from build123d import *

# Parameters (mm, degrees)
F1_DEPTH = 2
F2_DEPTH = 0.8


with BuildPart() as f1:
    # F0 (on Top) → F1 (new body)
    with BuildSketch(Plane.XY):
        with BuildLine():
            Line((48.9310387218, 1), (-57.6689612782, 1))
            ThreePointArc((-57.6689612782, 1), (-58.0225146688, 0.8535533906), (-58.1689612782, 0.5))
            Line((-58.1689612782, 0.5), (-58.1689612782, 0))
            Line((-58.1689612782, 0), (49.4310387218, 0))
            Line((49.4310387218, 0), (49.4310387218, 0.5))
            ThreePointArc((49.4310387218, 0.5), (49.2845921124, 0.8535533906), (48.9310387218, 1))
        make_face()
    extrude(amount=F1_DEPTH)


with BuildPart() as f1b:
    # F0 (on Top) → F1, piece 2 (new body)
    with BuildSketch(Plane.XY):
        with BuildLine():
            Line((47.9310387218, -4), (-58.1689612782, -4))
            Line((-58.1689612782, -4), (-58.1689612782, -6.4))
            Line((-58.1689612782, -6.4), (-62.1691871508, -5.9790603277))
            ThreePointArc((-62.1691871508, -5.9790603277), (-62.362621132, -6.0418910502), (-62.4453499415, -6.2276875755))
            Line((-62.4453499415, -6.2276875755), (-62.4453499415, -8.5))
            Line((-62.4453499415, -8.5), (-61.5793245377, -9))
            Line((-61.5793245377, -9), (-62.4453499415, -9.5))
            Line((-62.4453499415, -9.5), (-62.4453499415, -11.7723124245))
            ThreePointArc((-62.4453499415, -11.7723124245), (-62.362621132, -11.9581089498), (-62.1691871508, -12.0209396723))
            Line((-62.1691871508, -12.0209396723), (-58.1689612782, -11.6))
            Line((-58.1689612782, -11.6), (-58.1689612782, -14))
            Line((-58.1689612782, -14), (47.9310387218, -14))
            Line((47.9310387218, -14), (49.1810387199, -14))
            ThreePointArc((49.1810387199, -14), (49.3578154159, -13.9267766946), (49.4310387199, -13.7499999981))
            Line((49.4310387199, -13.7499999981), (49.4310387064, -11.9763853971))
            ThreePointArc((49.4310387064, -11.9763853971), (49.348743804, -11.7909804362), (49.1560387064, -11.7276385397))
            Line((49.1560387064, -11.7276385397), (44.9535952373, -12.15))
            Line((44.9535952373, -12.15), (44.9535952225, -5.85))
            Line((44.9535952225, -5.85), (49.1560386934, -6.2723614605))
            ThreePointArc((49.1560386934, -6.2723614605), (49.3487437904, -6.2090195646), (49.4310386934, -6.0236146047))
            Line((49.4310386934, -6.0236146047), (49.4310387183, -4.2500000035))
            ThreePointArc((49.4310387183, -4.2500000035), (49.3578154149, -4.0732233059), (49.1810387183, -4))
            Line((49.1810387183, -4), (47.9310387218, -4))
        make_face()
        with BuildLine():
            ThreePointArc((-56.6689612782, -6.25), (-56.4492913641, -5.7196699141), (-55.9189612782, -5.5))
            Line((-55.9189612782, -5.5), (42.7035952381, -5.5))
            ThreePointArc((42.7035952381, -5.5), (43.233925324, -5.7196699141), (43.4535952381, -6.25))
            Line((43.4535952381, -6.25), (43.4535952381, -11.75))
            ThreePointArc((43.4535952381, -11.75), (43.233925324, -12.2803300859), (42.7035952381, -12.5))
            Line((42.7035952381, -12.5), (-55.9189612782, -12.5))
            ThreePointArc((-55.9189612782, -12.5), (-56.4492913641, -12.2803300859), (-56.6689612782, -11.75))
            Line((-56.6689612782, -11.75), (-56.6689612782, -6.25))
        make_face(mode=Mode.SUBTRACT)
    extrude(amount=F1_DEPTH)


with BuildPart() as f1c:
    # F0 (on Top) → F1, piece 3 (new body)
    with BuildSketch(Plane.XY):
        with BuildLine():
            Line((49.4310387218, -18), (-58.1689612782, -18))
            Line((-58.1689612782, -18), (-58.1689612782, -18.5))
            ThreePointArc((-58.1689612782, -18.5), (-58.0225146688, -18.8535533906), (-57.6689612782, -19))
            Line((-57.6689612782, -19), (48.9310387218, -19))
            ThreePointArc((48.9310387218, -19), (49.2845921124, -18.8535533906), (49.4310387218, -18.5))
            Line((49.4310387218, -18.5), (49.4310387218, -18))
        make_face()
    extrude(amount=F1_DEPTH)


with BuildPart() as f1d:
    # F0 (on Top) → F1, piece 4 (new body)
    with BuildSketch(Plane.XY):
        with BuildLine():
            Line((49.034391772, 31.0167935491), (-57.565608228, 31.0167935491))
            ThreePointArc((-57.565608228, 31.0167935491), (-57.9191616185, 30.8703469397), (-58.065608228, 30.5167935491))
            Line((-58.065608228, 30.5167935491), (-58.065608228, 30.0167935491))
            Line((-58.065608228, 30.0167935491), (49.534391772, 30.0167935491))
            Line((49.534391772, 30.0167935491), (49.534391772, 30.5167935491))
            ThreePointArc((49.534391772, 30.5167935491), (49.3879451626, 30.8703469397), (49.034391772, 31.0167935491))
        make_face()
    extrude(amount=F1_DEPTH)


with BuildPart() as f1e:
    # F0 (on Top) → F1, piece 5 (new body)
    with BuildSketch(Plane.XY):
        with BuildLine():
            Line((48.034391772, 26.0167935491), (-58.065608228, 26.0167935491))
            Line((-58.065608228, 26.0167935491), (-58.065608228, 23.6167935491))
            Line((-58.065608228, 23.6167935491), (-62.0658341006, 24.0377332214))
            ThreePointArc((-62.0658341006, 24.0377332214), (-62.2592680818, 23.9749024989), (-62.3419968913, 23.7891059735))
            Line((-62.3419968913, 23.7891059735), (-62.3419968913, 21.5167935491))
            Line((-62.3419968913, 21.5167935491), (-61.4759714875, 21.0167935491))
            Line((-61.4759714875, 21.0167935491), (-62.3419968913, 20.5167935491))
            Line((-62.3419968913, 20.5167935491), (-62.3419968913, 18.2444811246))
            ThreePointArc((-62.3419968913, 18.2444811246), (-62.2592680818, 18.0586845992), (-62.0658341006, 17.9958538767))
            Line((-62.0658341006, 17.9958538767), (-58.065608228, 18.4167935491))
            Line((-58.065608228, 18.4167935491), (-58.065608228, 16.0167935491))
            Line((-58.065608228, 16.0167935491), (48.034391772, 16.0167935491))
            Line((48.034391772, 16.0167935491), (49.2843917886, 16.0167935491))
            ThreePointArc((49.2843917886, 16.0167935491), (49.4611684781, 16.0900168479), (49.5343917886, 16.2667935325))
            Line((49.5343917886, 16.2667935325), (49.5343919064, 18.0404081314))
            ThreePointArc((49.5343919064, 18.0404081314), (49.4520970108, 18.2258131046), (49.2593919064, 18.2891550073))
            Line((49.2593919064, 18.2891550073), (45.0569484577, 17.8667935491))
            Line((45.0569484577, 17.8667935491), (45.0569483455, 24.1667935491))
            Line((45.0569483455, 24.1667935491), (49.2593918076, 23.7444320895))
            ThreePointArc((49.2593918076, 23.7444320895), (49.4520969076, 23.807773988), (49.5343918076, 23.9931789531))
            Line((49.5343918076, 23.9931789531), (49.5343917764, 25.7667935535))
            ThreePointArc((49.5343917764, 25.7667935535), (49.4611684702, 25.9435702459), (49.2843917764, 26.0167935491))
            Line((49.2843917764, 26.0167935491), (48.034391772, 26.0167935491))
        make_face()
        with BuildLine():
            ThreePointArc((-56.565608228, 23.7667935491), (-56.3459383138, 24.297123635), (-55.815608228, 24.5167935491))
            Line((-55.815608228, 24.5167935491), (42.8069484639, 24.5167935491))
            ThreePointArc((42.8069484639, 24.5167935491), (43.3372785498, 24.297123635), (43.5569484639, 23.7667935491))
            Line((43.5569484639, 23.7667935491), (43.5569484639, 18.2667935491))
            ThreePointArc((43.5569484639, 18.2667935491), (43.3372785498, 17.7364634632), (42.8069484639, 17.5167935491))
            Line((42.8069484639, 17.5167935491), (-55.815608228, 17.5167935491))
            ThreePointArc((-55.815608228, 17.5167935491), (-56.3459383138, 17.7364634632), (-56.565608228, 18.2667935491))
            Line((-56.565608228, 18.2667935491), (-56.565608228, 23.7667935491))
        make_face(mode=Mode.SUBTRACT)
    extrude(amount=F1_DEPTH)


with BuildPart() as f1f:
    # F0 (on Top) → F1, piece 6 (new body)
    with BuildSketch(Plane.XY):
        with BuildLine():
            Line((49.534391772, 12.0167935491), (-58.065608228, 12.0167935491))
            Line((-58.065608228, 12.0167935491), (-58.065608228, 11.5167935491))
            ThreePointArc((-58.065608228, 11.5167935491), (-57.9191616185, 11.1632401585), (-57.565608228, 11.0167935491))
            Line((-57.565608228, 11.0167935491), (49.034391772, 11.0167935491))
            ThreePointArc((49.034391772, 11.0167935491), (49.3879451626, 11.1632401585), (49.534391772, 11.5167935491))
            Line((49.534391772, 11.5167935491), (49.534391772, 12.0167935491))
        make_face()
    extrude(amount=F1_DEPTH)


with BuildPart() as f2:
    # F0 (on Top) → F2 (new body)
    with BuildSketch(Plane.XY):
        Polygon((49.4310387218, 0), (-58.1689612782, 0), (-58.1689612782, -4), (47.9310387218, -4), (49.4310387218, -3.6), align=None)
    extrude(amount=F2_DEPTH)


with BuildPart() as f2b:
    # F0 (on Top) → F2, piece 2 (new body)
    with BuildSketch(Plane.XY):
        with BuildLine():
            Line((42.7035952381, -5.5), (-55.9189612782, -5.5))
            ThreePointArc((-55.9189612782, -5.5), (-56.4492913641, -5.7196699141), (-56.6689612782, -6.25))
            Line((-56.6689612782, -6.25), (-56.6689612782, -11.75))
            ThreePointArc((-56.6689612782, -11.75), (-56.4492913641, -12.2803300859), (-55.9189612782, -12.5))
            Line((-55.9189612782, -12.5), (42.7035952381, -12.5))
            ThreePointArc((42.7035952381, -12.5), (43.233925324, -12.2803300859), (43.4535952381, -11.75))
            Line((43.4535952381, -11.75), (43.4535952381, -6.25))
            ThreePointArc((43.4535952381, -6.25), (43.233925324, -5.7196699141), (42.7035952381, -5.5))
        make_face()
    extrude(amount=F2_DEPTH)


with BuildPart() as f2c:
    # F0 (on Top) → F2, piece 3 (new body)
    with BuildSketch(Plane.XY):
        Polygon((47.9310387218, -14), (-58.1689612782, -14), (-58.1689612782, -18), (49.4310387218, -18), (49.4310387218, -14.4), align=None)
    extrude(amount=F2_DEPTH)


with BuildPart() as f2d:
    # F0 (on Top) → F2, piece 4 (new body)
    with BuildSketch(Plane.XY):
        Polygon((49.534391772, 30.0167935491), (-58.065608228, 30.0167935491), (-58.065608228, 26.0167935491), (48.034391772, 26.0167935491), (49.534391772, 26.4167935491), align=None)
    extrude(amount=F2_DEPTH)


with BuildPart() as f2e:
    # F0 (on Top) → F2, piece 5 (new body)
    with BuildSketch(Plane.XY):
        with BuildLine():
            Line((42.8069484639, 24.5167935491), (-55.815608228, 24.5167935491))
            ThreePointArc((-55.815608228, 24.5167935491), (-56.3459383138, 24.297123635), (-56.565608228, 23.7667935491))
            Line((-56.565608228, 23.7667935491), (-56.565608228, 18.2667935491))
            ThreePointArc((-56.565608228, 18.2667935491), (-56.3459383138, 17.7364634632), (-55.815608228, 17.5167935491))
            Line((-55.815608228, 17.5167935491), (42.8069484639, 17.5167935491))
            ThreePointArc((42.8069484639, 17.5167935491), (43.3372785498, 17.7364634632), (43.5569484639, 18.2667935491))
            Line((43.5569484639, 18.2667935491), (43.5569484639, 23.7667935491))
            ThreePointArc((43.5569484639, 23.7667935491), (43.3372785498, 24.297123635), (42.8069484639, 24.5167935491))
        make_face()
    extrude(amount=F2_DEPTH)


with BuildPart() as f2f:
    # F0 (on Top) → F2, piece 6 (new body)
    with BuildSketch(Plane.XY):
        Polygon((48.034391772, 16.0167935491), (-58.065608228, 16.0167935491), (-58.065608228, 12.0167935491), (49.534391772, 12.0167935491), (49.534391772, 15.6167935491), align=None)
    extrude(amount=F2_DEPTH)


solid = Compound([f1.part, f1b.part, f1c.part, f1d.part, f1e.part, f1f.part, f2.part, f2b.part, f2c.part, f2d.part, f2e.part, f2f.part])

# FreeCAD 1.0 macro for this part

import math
import FreeCAD as App
import Part
import Sketcher
Q = App.Units.Quantity


def add_polygon(sketch, points):
    """Adds a closed chain of lines whose ends are joined by coincident constraints."""
    first, n = sketch.GeometryCount, len(points)
    for a, b in zip(points, points[1:] + points[:1]):
        sketch.addGeometry(Part.LineSegment(App.Vector(*a, 0), App.Vector(*b, 0)), False)
    for i in range(n):
        sketch.addConstraint(Sketcher.Constraint("Coincident", first + i, 2, first + (i + 1) % n, 1))

doc = App.newDocument("Part")
body = doc.addObject("PartDesign::Body", "Body")

# Sketch on XY plane
sketch1 = doc.addObject("Sketcher::SketchObject", "Sketch")
body.addObject(sketch1)
sketch1.AttachmentSupport = (doc.XY_Plane, [""])
sketch1.MapMode = "FlatFace"
sketch1.addGeometry(Part.LineSegment(App.Vector(48.931039, 1, 0), App.Vector(-57.668961, 1, 0)), False)
sketch1.addGeometry(Part.ArcOfCircle(Part.Circle(App.Vector(-57.668961, 0.5, 0), App.Vector(0, 0, 1), 0.5), math.radians(90), math.radians(180)), False)
sketch1.addGeometry(Part.LineSegment(App.Vector(-58.168961, 0.5, 0), App.Vector(-58.168961, 0, 0)), False)
sketch1.addGeometry(Part.LineSegment(App.Vector(-58.168961, 0, 0), App.Vector(49.431039, 0, 0)), False)
sketch1.addGeometry(Part.LineSegment(App.Vector(49.431039, 0, 0), App.Vector(49.431039, 0.5, 0)), False)
sketch1.addGeometry(Part.ArcOfCircle(Part.Circle(App.Vector(48.931039, 0.5, 0), App.Vector(0, 0, 1), 0.5), math.radians(0), math.radians(90)), False)
sketch1.addConstraint(Sketcher.Constraint("Tangent", 0, 2, 1, 1))
sketch1.addConstraint(Sketcher.Constraint("Tangent", 1, 2, 2, 1))
sketch1.addConstraint(Sketcher.Constraint("Coincident", 2, 2, 3, 1))
sketch1.addConstraint(Sketcher.Constraint("Coincident", 3, 2, 4, 1))
sketch1.addConstraint(Sketcher.Constraint("Tangent", 4, 2, 5, 1))
sketch1.addConstraint(Sketcher.Constraint("Tangent", 5, 2, 0, 1))
sketch1.addConstraint(Sketcher.Constraint("Horizontal", 0))
sketch1.addConstraint(Sketcher.Constraint("Vertical", 2))
sketch1.addConstraint(Sketcher.Constraint("Horizontal", 3))
sketch1.addConstraint(Sketcher.Constraint("Vertical", 4))
sketch1.addConstraint(Sketcher.Constraint("Equal", 1, 5))
sketch1.addConstraint(Sketcher.Constraint("PointOnObject", 2, 2, -1))
sketch1.addConstraint(Sketcher.Constraint("Radius", 1, Q("0.5 mm")))
sketch1.addConstraint(Sketcher.Constraint("DistanceX", 0, 2, 0, 1, Q("106.6 mm")))
sketch1.addConstraint(Sketcher.Constraint("DistanceY", 2, 2, 2, 1, Q("0.5 mm")))
sketch1.addConstraint(Sketcher.Constraint("DistanceX", 1, 3, -1, 1, Q("57.668961 mm")))
pad1 = doc.addObject("PartDesign::Pad", "Pad")
body.addObject(pad1)
pad1.Profile = sketch1
pad1.Length = 2
body2 = doc.addObject("PartDesign::Body", "Body001")

# Sketch on XY plane
sketch2 = doc.addObject("Sketcher::SketchObject", "Sketch001")
body2.addObject(sketch2)
sketch2.AttachmentSupport = (doc.getObject("XY_Plane001"), [""])
sketch2.MapMode = "FlatFace"
sketch2.addGeometry(Part.LineSegment(App.Vector(-58.168961, -4, 0), App.Vector(-58.168961, -6.4, 0)), False)
sketch2.addGeometry(Part.LineSegment(App.Vector(-58.168961, -6.4, 0), App.Vector(-62.169187, -5.97906, 0)), False)
sketch2.addGeometry(Part.ArcOfCircle(Part.Circle(App.Vector(-62.19535, -6.227688, 0), App.Vector(0, 0, 1), 0.25), math.radians(83.992931), math.radians(180)), False)
sketch2.addGeometry(Part.LineSegment(App.Vector(-62.44535, -6.227688, 0), App.Vector(-62.44535, -8.5, 0)), False)
sketch2.addGeometry(Part.LineSegment(App.Vector(-62.44535, -8.5, 0), App.Vector(-61.579325, -9, 0)), False)
sketch2.addGeometry(Part.LineSegment(App.Vector(-61.579325, -9, 0), App.Vector(-62.44535, -9.5, 0)), False)
sketch2.addGeometry(Part.LineSegment(App.Vector(-62.44535, -9.5, 0), App.Vector(-62.44535, -11.772312, 0)), False)
sketch2.addGeometry(Part.ArcOfCircle(Part.Circle(App.Vector(-62.19535, -11.772312, 0), App.Vector(0, 0, 1), 0.25), math.radians(-180), math.radians(-83.992931)), False)
sketch2.addGeometry(Part.LineSegment(App.Vector(-62.169187, -12.02094, 0), App.Vector(-58.168961, -11.6, 0)), False)
sketch2.addGeometry(Part.LineSegment(App.Vector(-58.168961, -11.6, 0), App.Vector(-58.168961, -14, 0)), False)
sketch2.addGeometry(Part.LineSegment(App.Vector(-58.168961, -14, 0), App.Vector(49.181039, -14, 0)), False)
sketch2.addGeometry(Part.ArcOfCircle(Part.Circle(App.Vector(49.181039, -13.75, 0), App.Vector(0, 0, 1), 0.25), math.radians(-90), math.radians(0)), False)
sketch2.addGeometry(Part.LineSegment(App.Vector(49.431039, -13.75, 0), App.Vector(49.431039, -11.976385, 0)), False)
sketch2.addGeometry(Part.ArcOfCircle(Part.Circle(App.Vector(49.181039, -11.976385, 0), App.Vector(0, 0, 1), 0.25), math.radians(0), math.radians(95.73917)), False)
sketch2.addGeometry(Part.LineSegment(App.Vector(49.156039, -11.727639, 0), App.Vector(44.953595, -12.15, 0)), False)
sketch2.addGeometry(Part.LineSegment(App.Vector(44.953595, -12.15, 0), App.Vector(44.953595, -5.85, 0)), False)
sketch2.addGeometry(Part.LineSegment(App.Vector(44.953595, -5.85, 0), App.Vector(49.156039, -6.272361, 0)), False)
sketch2.addGeometry(Part.ArcOfCircle(Part.Circle(App.Vector(49.181039, -6.023615, 0), App.Vector(0, 0, 1), 0.25), math.radians(-95.73917), math.radians(-0.000001)), False)
sketch2.addGeometry(Part.LineSegment(App.Vector(49.431039, -6.023615, 0), App.Vector(49.431039, -4.25, 0)), False)
sketch2.addGeometry(Part.ArcOfCircle(Part.Circle(App.Vector(49.181039, -4.25, 0), App.Vector(0, 0, 1), 0.25), math.radians(-0.000001), math.radians(90)), False)
sketch2.addGeometry(Part.LineSegment(App.Vector(49.181039, -4, 0), App.Vector(-58.168961, -4, 0)), False)
sketch2.addGeometry(Part.LineSegment(App.Vector(-56.668961, -11.75, 0), App.Vector(-56.668961, -6.25, 0)), False)
sketch2.addGeometry(Part.ArcOfCircle(Part.Circle(App.Vector(-55.918961, -6.25, 0), App.Vector(0, 0, 1), 0.75), math.radians(90), math.radians(180)), False)
sketch2.addGeometry(Part.LineSegment(App.Vector(-55.918961, -5.5, 0), App.Vector(42.703595, -5.5, 0)), False)
sketch2.addGeometry(Part.ArcOfCircle(Part.Circle(App.Vector(42.703595, -6.25, 0), App.Vector(0, 0, 1), 0.75), math.radians(0), math.radians(90)), False)
sketch2.addGeometry(Part.LineSegment(App.Vector(43.453595, -6.25, 0), App.Vector(43.453595, -11.75, 0)), False)
sketch2.addGeometry(Part.ArcOfCircle(Part.Circle(App.Vector(42.703595, -11.75, 0), App.Vector(0, 0, 1), 0.75), math.radians(-90), math.radians(0)), False)
sketch2.addGeometry(Part.LineSegment(App.Vector(42.703595, -12.5, 0), App.Vector(-55.918961, -12.5, 0)), False)
sketch2.addGeometry(Part.ArcOfCircle(Part.Circle(App.Vector(-55.918961, -11.75, 0), App.Vector(0, 0, 1), 0.75), math.radians(180), math.radians(270)), False)
sketch2.addConstraint(Sketcher.Constraint("Coincident", 0, 2, 1, 1))
sketch2.addConstraint(Sketcher.Constraint("Tangent", 1, 2, 2, 1))
sketch2.addConstraint(Sketcher.Constraint("Tangent", 2, 2, 3, 1))
sketch2.addConstraint(Sketcher.Constraint("Coincident", 3, 2, 4, 1))
sketch2.addConstraint(Sketcher.Constraint("Coincident", 4, 2, 5, 1))
sketch2.addConstraint(Sketcher.Constraint("Coincident", 5, 2, 6, 1))
sketch2.addConstraint(Sketcher.Constraint("Tangent", 6, 2, 7, 1))
sketch2.addConstraint(Sketcher.Constraint("Tangent", 7, 2, 8, 1))
sketch2.addConstraint(Sketcher.Constraint("Coincident", 8, 2, 9, 1))
sketch2.addConstraint(Sketcher.Constraint("Coincident", 9, 2, 10, 1))
sketch2.addConstraint(Sketcher.Constraint("Tangent", 10, 2, 11, 1))
sketch2.addConstraint(Sketcher.Constraint("Tangent", 11, 2, 12, 1))
sketch2.addConstraint(Sketcher.Constraint("Tangent", 12, 2, 13, 1))
sketch2.addConstraint(Sketcher.Constraint("Tangent", 13, 2, 14, 1))
sketch2.addConstraint(Sketcher.Constraint("Coincident", 14, 2, 15, 1))
sketch2.addConstraint(Sketcher.Constraint("Coincident", 15, 2, 16, 1))
sketch2.addConstraint(Sketcher.Constraint("Tangent", 16, 2, 17, 1))
sketch2.addConstraint(Sketcher.Constraint("Tangent", 17, 2, 18, 1))
sketch2.addConstraint(Sketcher.Constraint("Tangent", 18, 2, 19, 1))
sketch2.addConstraint(Sketcher.Constraint("Tangent", 19, 2, 20, 1))
sketch2.addConstraint(Sketcher.Constraint("Coincident", 20, 2, 0, 1))
sketch2.addConstraint(Sketcher.Constraint("Tangent", 21, 2, 22, 2))
sketch2.addConstraint(Sketcher.Constraint("Tangent", 22, 1, 23, 1))
sketch2.addConstraint(Sketcher.Constraint("Tangent", 23, 2, 24, 2))
sketch2.addConstraint(Sketcher.Constraint("Tangent", 24, 1, 25, 1))
sketch2.addConstraint(Sketcher.Constraint("Tangent", 25, 2, 26, 2))
sketch2.addConstraint(Sketcher.Constraint("Tangent", 26, 1, 27, 1))
sketch2.addConstraint(Sketcher.Constraint("Tangent", 27, 2, 28, 2))
sketch2.addConstraint(Sketcher.Constraint("Tangent", 28, 1, 21, 1))
sketch2.addConstraint(Sketcher.Constraint("Vertical", 0))
sketch2.addConstraint(Sketcher.Constraint("Vertical", 3))
sketch2.addConstraint(Sketcher.Constraint("Vertical", 6))
sketch2.addConstraint(Sketcher.Constraint("Vertical", 9))
sketch2.addConstraint(Sketcher.Constraint("Horizontal", 10))
sketch2.addConstraint(Sketcher.Constraint("Vertical", 12))
sketch2.addConstraint(Sketcher.Constraint("Vertical", 15))
sketch2.addConstraint(Sketcher.Constraint("Vertical", 18))
sketch2.addConstraint(Sketcher.Constraint("Horizontal", 20))
sketch2.addConstraint(Sketcher.Constraint("Vertical", 21))
sketch2.addConstraint(Sketcher.Constraint("Horizontal", 23))
sketch2.addConstraint(Sketcher.Constraint("Vertical", 25))
sketch2.addConstraint(Sketcher.Constraint("Horizontal", 27))
sketch2.addConstraint(Sketcher.Constraint("Equal", 2, 7))
sketch2.addConstraint(Sketcher.Constraint("Equal", 7, 11))
sketch2.addConstraint(Sketcher.Constraint("Equal", 11, 13))
sketch2.addConstraint(Sketcher.Constraint("Equal", 13, 17))
sketch2.addConstraint(Sketcher.Constraint("Equal", 17, 19))
sketch2.addConstraint(Sketcher.Constraint("Equal", 22, 24))
sketch2.addConstraint(Sketcher.Constraint("Equal", 24, 26))
sketch2.addConstraint(Sketcher.Constraint("Equal", 26, 28))
sketch2.addConstraint(Sketcher.Constraint("Vertical", 2, 3, 7, 3))
sketch2.addConstraint(Sketcher.Constraint("Vertical", 13, 3, 17, 3))
sketch2.addConstraint(Sketcher.Constraint("Vertical", 1, 2, 7, 2))
sketch2.addConstraint(Sketcher.Constraint("Vertical", 0, 2, 8, 2))
sketch2.addConstraint(Sketcher.Constraint("Vertical", 13, 2, 16, 2))
sketch2.addConstraint(Sketcher.Constraint("Equal", 3, 6))
sketch2.addConstraint(Sketcher.Constraint("Equal", 0, 9))
sketch2.addConstraint(Sketcher.Constraint("Equal", 12, 18))
sketch2.addConstraint(Sketcher.Constraint("Equal", 4, 5))
sketch2.addConstraint(Sketcher.Constraint("Angle", 4, Q("-30 deg")))
sketch2.addConstraint(Sketcher.Constraint("Radius", 2, Q("0.25 mm")))
sketch2.addConstraint(Sketcher.Constraint("Radius", 22, Q("0.75 mm")))
sketch2.addConstraint(Sketcher.Constraint("Distance", 4, Q("1 mm")))
sketch2.addConstraint(Sketcher.Constraint("DistanceY", 0, 2, 0, 1, Q("2.4 mm")))
sketch2.addConstraint(Sketcher.Constraint("DistanceY", 15, 1, 15, 2, Q("6.3 mm")))
sketch2.addConstraint(Sketcher.Constraint("DistanceY", 21, 1, 21, 2, Q("5.5 mm")))
sketch2.addConstraint(Sketcher.Constraint("DistanceY", 4, 2, -1, 1, Q("9 mm")))
sketch2.addConstraint(Sketcher.Constraint("DistanceY", 9, 2, -1, 1, Q("14 mm")))
sketch2.addConstraint(Sketcher.Constraint("DistanceY", 22, 3, 19, 3, Q("2 mm")))
sketch2.addConstraint(Sketcher.Constraint("DistanceX", 10, 1, 10, 2, Q("107.35 mm")))
sketch2.addConstraint(Sketcher.Constraint("DistanceX", 22, 3, 17, 3, Q("105.1 mm")))
sketch2.addConstraint(Sketcher.Constraint("DistanceX", 24, 1, 15, 2, Q("1.5 mm")))
sketch2.addConstraint(Sketcher.Constraint("DistanceX", 13, 2, 13, 3, Q("0.025 mm")))
sketch2.addConstraint(Sketcher.Constraint("DistanceX", 23, 1, 23, 2, Q("98.622557 mm")))
sketch2.addConstraint(Sketcher.Constraint("DistanceY", 3, 2, 3, 1, Q("2.272312 mm")))
sketch2.addConstraint(Sketcher.Constraint("DistanceX", 2, 3, -1, 1, Q("62.19535 mm")))
sketch2.addConstraint(Sketcher.Constraint("DistanceX", -1, 1, 11, 3, Q("49.181039 mm")))
pad2 = doc.addObject("PartDesign::Pad", "Pad001")
body2.addObject(pad2)
pad2.Profile = sketch2
pad2.Length = 2
body3 = doc.addObject("PartDesign::Body", "Body002")

# Sketch on XY plane
sketch3 = doc.addObject("Sketcher::SketchObject", "Sketch002")
body3.addObject(sketch3)
sketch3.AttachmentSupport = (doc.getObject("XY_Plane002"), [""])
sketch3.MapMode = "FlatFace"
sketch3.addGeometry(Part.LineSegment(App.Vector(49.431039, -18, 0), App.Vector(-58.168961, -18, 0)), False)
sketch3.addGeometry(Part.LineSegment(App.Vector(-58.168961, -18, 0), App.Vector(-58.168961, -18.5, 0)), False)
sketch3.addGeometry(Part.ArcOfCircle(Part.Circle(App.Vector(-57.668961, -18.5, 0), App.Vector(0, 0, 1), 0.5), math.radians(180), math.radians(270)), False)
sketch3.addGeometry(Part.LineSegment(App.Vector(-57.668961, -19, 0), App.Vector(48.931039, -19, 0)), False)
sketch3.addGeometry(Part.ArcOfCircle(Part.Circle(App.Vector(48.931039, -18.5, 0), App.Vector(0, 0, 1), 0.5), math.radians(-90), math.radians(0)), False)
sketch3.addGeometry(Part.LineSegment(App.Vector(49.431039, -18.5, 0), App.Vector(49.431039, -18, 0)), False)
sketch3.addConstraint(Sketcher.Constraint("Coincident", 0, 2, 1, 1))
sketch3.addConstraint(Sketcher.Constraint("Tangent", 1, 2, 2, 1))
sketch3.addConstraint(Sketcher.Constraint("Tangent", 2, 2, 3, 1))
sketch3.addConstraint(Sketcher.Constraint("Tangent", 3, 2, 4, 1))
sketch3.addConstraint(Sketcher.Constraint("Tangent", 4, 2, 5, 1))
sketch3.addConstraint(Sketcher.Constraint("Coincident", 5, 2, 0, 1))
sketch3.addConstraint(Sketcher.Constraint("Horizontal", 0))
sketch3.addConstraint(Sketcher.Constraint("Vertical", 1))
sketch3.addConstraint(Sketcher.Constraint("Horizontal", 3))
sketch3.addConstraint(Sketcher.Constraint("Vertical", 5))
sketch3.addConstraint(Sketcher.Constraint("Equal", 2, 4))
sketch3.addConstraint(Sketcher.Constraint("Radius", 2, Q("0.5 mm")))
sketch3.addConstraint(Sketcher.Constraint("DistanceX", 0, 2, 0, 1, Q("107.6 mm")))
sketch3.addConstraint(Sketcher.Constraint("DistanceY", 1, 2, 1, 1, Q("0.5 mm")))
sketch3.addConstraint(Sketcher.Constraint("DistanceY", 0, 2, -1, 1, Q("18 mm")))
sketch3.addConstraint(Sketcher.Constraint("DistanceX", 2, 3, -1, 1, Q("57.668961 mm")))
pad3 = doc.addObject("PartDesign::Pad", "Pad002")
body3.addObject(pad3)
pad3.Profile = sketch3
pad3.Length = 2
body4 = doc.addObject("PartDesign::Body", "Body003")

# Sketch on XY plane
sketch4 = doc.addObject("Sketcher::SketchObject", "Sketch003")
body4.addObject(sketch4)
sketch4.AttachmentSupport = (doc.getObject("XY_Plane003"), [""])
sketch4.MapMode = "FlatFace"
sketch4.addGeometry(Part.LineSegment(App.Vector(49.034392, 31.016794, 0), App.Vector(-57.565608, 31.016794, 0)), False)
sketch4.addGeometry(Part.ArcOfCircle(Part.Circle(App.Vector(-57.565608, 30.516794, 0), App.Vector(0, 0, 1), 0.5), math.radians(90), math.radians(180)), False)
sketch4.addGeometry(Part.LineSegment(App.Vector(-58.065608, 30.516794, 0), App.Vector(-58.065608, 30.016794, 0)), False)
sketch4.addGeometry(Part.LineSegment(App.Vector(-58.065608, 30.016794, 0), App.Vector(49.534392, 30.016794, 0)), False)
sketch4.addGeometry(Part.LineSegment(App.Vector(49.534392, 30.016794, 0), App.Vector(49.534392, 30.516794, 0)), False)
sketch4.addGeometry(Part.ArcOfCircle(Part.Circle(App.Vector(49.034392, 30.516794, 0), App.Vector(0, 0, 1), 0.5), math.radians(0), math.radians(90)), False)
sketch4.addConstraint(Sketcher.Constraint("Tangent", 0, 2, 1, 1))
sketch4.addConstraint(Sketcher.Constraint("Tangent", 1, 2, 2, 1))
sketch4.addConstraint(Sketcher.Constraint("Coincident", 2, 2, 3, 1))
sketch4.addConstraint(Sketcher.Constraint("Coincident", 3, 2, 4, 1))
sketch4.addConstraint(Sketcher.Constraint("Tangent", 4, 2, 5, 1))
sketch4.addConstraint(Sketcher.Constraint("Tangent", 5, 2, 0, 1))
sketch4.addConstraint(Sketcher.Constraint("Horizontal", 0))
sketch4.addConstraint(Sketcher.Constraint("Vertical", 2))
sketch4.addConstraint(Sketcher.Constraint("Horizontal", 3))
sketch4.addConstraint(Sketcher.Constraint("Vertical", 4))
sketch4.addConstraint(Sketcher.Constraint("Equal", 1, 5))
sketch4.addConstraint(Sketcher.Constraint("Radius", 1, Q("0.5 mm")))
sketch4.addConstraint(Sketcher.Constraint("DistanceX", 0, 2, 0, 1, Q("106.6 mm")))
sketch4.addConstraint(Sketcher.Constraint("DistanceY", 2, 2, 2, 1, Q("0.5 mm")))
sketch4.addConstraint(Sketcher.Constraint("DistanceX", 1, 3, -1, 1, Q("57.565608 mm")))
sketch4.addConstraint(Sketcher.Constraint("DistanceY", -1, 1, 1, 3, Q("30.516794 mm")))
pad4 = doc.addObject("PartDesign::Pad", "Pad003")
body4.addObject(pad4)
pad4.Profile = sketch4
pad4.Length = 2
body5 = doc.addObject("PartDesign::Body", "Body004")

# Sketch on XY plane
sketch5 = doc.addObject("Sketcher::SketchObject", "Sketch004")
body5.addObject(sketch5)
sketch5.AttachmentSupport = (doc.getObject("XY_Plane004"), [""])
sketch5.MapMode = "FlatFace"
sketch5.addGeometry(Part.LineSegment(App.Vector(-58.065608, 26.016794, 0), App.Vector(-58.065608, 23.616794, 0)), False)
sketch5.addGeometry(Part.LineSegment(App.Vector(-58.065608, 23.616794, 0), App.Vector(-62.065834, 24.037733, 0)), False)
sketch5.addGeometry(Part.ArcOfCircle(Part.Circle(App.Vector(-62.091997, 23.789106, 0), App.Vector(0, 0, 1), 0.25), math.radians(83.992931), math.radians(180)), False)
sketch5.addGeometry(Part.LineSegment(App.Vector(-62.341997, 23.789106, 0), App.Vector(-62.341997, 21.516794, 0)), False)
sketch5.addGeometry(Part.LineSegment(App.Vector(-62.341997, 21.516794, 0), App.Vector(-61.475971, 21.016794, 0)), False)
sketch5.addGeometry(Part.LineSegment(App.Vector(-61.475971, 21.016794, 0), App.Vector(-62.341997, 20.516794, 0)), False)
sketch5.addGeometry(Part.LineSegment(App.Vector(-62.341997, 20.516794, 0), App.Vector(-62.341997, 18.244481, 0)), False)
sketch5.addGeometry(Part.ArcOfCircle(Part.Circle(App.Vector(-62.091997, 18.244481, 0), App.Vector(0, 0, 1), 0.25), math.radians(180), math.radians(276.007069)), False)
sketch5.addGeometry(Part.LineSegment(App.Vector(-62.065834, 17.995854, 0), App.Vector(-58.065608, 18.416794, 0)), False)
sketch5.addGeometry(Part.LineSegment(App.Vector(-58.065608, 18.416794, 0), App.Vector(-58.065608, 16.016794, 0)), False)
sketch5.addGeometry(Part.LineSegment(App.Vector(-58.065608, 16.016794, 0), App.Vector(49.284392, 16.016794, 0)), False)
sketch5.addGeometry(Part.ArcOfCircle(Part.Circle(App.Vector(49.284392, 16.266794, 0), App.Vector(0, 0, 1), 0.25), math.radians(-90), math.radians(-0.000004)), False)
sketch5.addGeometry(Part.LineSegment(App.Vector(49.534392, 16.266794, 0), App.Vector(49.534392, 18.040408, 0)), False)
sketch5.addGeometry(Part.ArcOfCircle(Part.Circle(App.Vector(49.284392, 18.040408, 0), App.Vector(0, 0, 1), 0.25), math.radians(-0.000004), math.radians(95.73917)), False)
sketch5.addGeometry(Part.LineSegment(App.Vector(49.259392, 18.289155, 0), App.Vector(45.056948, 17.866794, 0)), False)
sketch5.addGeometry(Part.LineSegment(App.Vector(45.056948, 17.866794, 0), App.Vector(45.056948, 24.166794, 0)), False)
sketch5.addGeometry(Part.LineSegment(App.Vector(45.056948, 24.166794, 0), App.Vector(49.259392, 23.744432, 0)), False)
sketch5.addGeometry(Part.ArcOfCircle(Part.Circle(App.Vector(49.284392, 23.993179, 0), App.Vector(0, 0, 1), 0.25), math.radians(-95.73917), math.radians(0.000001)), False)
sketch5.addGeometry(Part.LineSegment(App.Vector(49.534392, 23.993179, 0), App.Vector(49.534392, 25.766794, 0)), False)
sketch5.addGeometry(Part.ArcOfCircle(Part.Circle(App.Vector(49.284392, 25.766794, 0), App.Vector(0, 0, 1), 0.25), math.radians(0.000001), math.radians(90)), False)
sketch5.addGeometry(Part.LineSegment(App.Vector(49.284392, 26.016794, 0), App.Vector(-58.065608, 26.016794, 0)), False)
sketch5.addGeometry(Part.LineSegment(App.Vector(-56.565608, 18.266794, 0), App.Vector(-56.565608, 23.766794, 0)), False)
sketch5.addGeometry(Part.ArcOfCircle(Part.Circle(App.Vector(-55.815608, 23.766794, 0), App.Vector(0, 0, 1), 0.75), math.radians(90), math.radians(180)), False)
sketch5.addGeometry(Part.LineSegment(App.Vector(-55.815608, 24.516794, 0), App.Vector(42.806948, 24.516794, 0)), False)
sketch5.addGeometry(Part.ArcOfCircle(Part.Circle(App.Vector(42.806948, 23.766794, 0), App.Vector(0, 0, 1), 0.75), math.radians(0), math.radians(90)), False)
sketch5.addGeometry(Part.LineSegment(App.Vector(43.556948, 23.766794, 0), App.Vector(43.556948, 18.266794, 0)), False)
sketch5.addGeometry(Part.ArcOfCircle(Part.Circle(App.Vector(42.806948, 18.266794, 0), App.Vector(0, 0, 1), 0.75), math.radians(-90), math.radians(0)), False)
sketch5.addGeometry(Part.LineSegment(App.Vector(42.806948, 17.516794, 0), App.Vector(-55.815608, 17.516794, 0)), False)
sketch5.addGeometry(Part.ArcOfCircle(Part.Circle(App.Vector(-55.815608, 18.266794, 0), App.Vector(0, 0, 1), 0.75), math.radians(180), math.radians(270)), False)
sketch5.addConstraint(Sketcher.Constraint("Coincident", 0, 2, 1, 1))
sketch5.addConstraint(Sketcher.Constraint("Tangent", 1, 2, 2, 1))
sketch5.addConstraint(Sketcher.Constraint("Tangent", 2, 2, 3, 1))
sketch5.addConstraint(Sketcher.Constraint("Coincident", 3, 2, 4, 1))
sketch5.addConstraint(Sketcher.Constraint("Coincident", 4, 2, 5, 1))
sketch5.addConstraint(Sketcher.Constraint("Coincident", 5, 2, 6, 1))
sketch5.addConstraint(Sketcher.Constraint("Tangent", 6, 2, 7, 1))
sketch5.addConstraint(Sketcher.Constraint("Tangent", 7, 2, 8, 1))
sketch5.addConstraint(Sketcher.Constraint("Coincident", 8, 2, 9, 1))
sketch5.addConstraint(Sketcher.Constraint("Coincident", 9, 2, 10, 1))
sketch5.addConstraint(Sketcher.Constraint("Tangent", 10, 2, 11, 1))
sketch5.addConstraint(Sketcher.Constraint("Tangent", 11, 2, 12, 1))
sketch5.addConstraint(Sketcher.Constraint("Tangent", 12, 2, 13, 1))
sketch5.addConstraint(Sketcher.Constraint("Tangent", 13, 2, 14, 1))
sketch5.addConstraint(Sketcher.Constraint("Coincident", 14, 2, 15, 1))
sketch5.addConstraint(Sketcher.Constraint("Coincident", 15, 2, 16, 1))
sketch5.addConstraint(Sketcher.Constraint("Tangent", 16, 2, 17, 1))
sketch5.addConstraint(Sketcher.Constraint("Tangent", 17, 2, 18, 1))
sketch5.addConstraint(Sketcher.Constraint("Tangent", 18, 2, 19, 1))
sketch5.addConstraint(Sketcher.Constraint("Tangent", 19, 2, 20, 1))
sketch5.addConstraint(Sketcher.Constraint("Coincident", 20, 2, 0, 1))
sketch5.addConstraint(Sketcher.Constraint("Tangent", 21, 2, 22, 2))
sketch5.addConstraint(Sketcher.Constraint("Tangent", 22, 1, 23, 1))
sketch5.addConstraint(Sketcher.Constraint("Tangent", 23, 2, 24, 2))
sketch5.addConstraint(Sketcher.Constraint("Tangent", 24, 1, 25, 1))
sketch5.addConstraint(Sketcher.Constraint("Tangent", 25, 2, 26, 2))
sketch5.addConstraint(Sketcher.Constraint("Tangent", 26, 1, 27, 1))
sketch5.addConstraint(Sketcher.Constraint("Tangent", 27, 2, 28, 2))
sketch5.addConstraint(Sketcher.Constraint("Tangent", 28, 1, 21, 1))
sketch5.addConstraint(Sketcher.Constraint("Vertical", 0))
sketch5.addConstraint(Sketcher.Constraint("Vertical", 3))
sketch5.addConstraint(Sketcher.Constraint("Vertical", 6))
sketch5.addConstraint(Sketcher.Constraint("Vertical", 9))
sketch5.addConstraint(Sketcher.Constraint("Horizontal", 10))
sketch5.addConstraint(Sketcher.Constraint("Vertical", 12))
sketch5.addConstraint(Sketcher.Constraint("Vertical", 15))
sketch5.addConstraint(Sketcher.Constraint("Vertical", 18))
sketch5.addConstraint(Sketcher.Constraint("Horizontal", 20))
sketch5.addConstraint(Sketcher.Constraint("Vertical", 21))
sketch5.addConstraint(Sketcher.Constraint("Horizontal", 23))
sketch5.addConstraint(Sketcher.Constraint("Vertical", 25))
sketch5.addConstraint(Sketcher.Constraint("Horizontal", 27))
sketch5.addConstraint(Sketcher.Constraint("Equal", 2, 7))
sketch5.addConstraint(Sketcher.Constraint("Equal", 7, 11))
sketch5.addConstraint(Sketcher.Constraint("Equal", 11, 13))
sketch5.addConstraint(Sketcher.Constraint("Equal", 13, 17))
sketch5.addConstraint(Sketcher.Constraint("Equal", 17, 19))
sketch5.addConstraint(Sketcher.Constraint("Equal", 22, 24))
sketch5.addConstraint(Sketcher.Constraint("Equal", 24, 26))
sketch5.addConstraint(Sketcher.Constraint("Equal", 26, 28))
sketch5.addConstraint(Sketcher.Constraint("Vertical", 2, 3, 7, 3))
sketch5.addConstraint(Sketcher.Constraint("Vertical", 13, 3, 17, 3))
sketch5.addConstraint(Sketcher.Constraint("Vertical", 1, 2, 7, 2))
sketch5.addConstraint(Sketcher.Constraint("Vertical", 0, 2, 8, 2))
sketch5.addConstraint(Sketcher.Constraint("Vertical", 13, 2, 16, 2))
sketch5.addConstraint(Sketcher.Constraint("Equal", 3, 6))
sketch5.addConstraint(Sketcher.Constraint("Equal", 0, 9))
sketch5.addConstraint(Sketcher.Constraint("Equal", 12, 18))
sketch5.addConstraint(Sketcher.Constraint("Equal", 4, 5))
sketch5.addConstraint(Sketcher.Constraint("Angle", 4, Q("-30 deg")))
sketch5.addConstraint(Sketcher.Constraint("Radius", 2, Q("0.25 mm")))
sketch5.addConstraint(Sketcher.Constraint("Radius", 22, Q("0.75 mm")))
sketch5.addConstraint(Sketcher.Constraint("Distance", 4, Q("1 mm")))
sketch5.addConstraint(Sketcher.Constraint("DistanceY", 0, 2, 0, 1, Q("2.4 mm")))
sketch5.addConstraint(Sketcher.Constraint("DistanceY", 15, 1, 15, 2, Q("6.3 mm")))
sketch5.addConstraint(Sketcher.Constraint("DistanceY", 21, 1, 21, 2, Q("5.5 mm")))
sketch5.addConstraint(Sketcher.Constraint("DistanceY", 22, 3, 19, 3, Q("2 mm")))
sketch5.addConstraint(Sketcher.Constraint("DistanceY", 11, 3, 26, 3, Q("2 mm")))
sketch5.addConstraint(Sketcher.Constraint("DistanceX", 10, 1, 10, 2, Q("107.35 mm")))
sketch5.addConstraint(Sketcher.Constraint("DistanceX", 22, 3, 17, 3, Q("105.1 mm")))
sketch5.addConstraint(Sketcher.Constraint("DistanceX", 24, 1, 15, 2, Q("1.5 mm")))
sketch5.addConstraint(Sketcher.Constraint("DistanceX", 13, 2, 13, 3, Q("0.025 mm")))
sketch5.addConstraint(Sketcher.Constraint("DistanceX", 23, 1, 23, 2, Q("98.622557 mm")))
sketch5.addConstraint(Sketcher.Constraint("DistanceY", 3, 2, 3, 1, Q("2.272312 mm")))
sketch5.addConstraint(Sketcher.Constraint("DistanceY", -1, 1, 7, 3, Q("18.244481 mm")))
sketch5.addConstraint(Sketcher.Constraint("DistanceX", -1, 1, 11, 3, Q("49.284392 mm")))
sketch5.addConstraint(Sketcher.Constraint("DistanceX", 4, 2, -1, 1, Q("61.475971 mm")))
pad5 = doc.addObject("PartDesign::Pad", "Pad004")
body5.addObject(pad5)
pad5.Profile = sketch5
pad5.Length = 2
body6 = doc.addObject("PartDesign::Body", "Body005")

# Sketch on XY plane
sketch6 = doc.addObject("Sketcher::SketchObject", "Sketch005")
body6.addObject(sketch6)
sketch6.AttachmentSupport = (doc.getObject("XY_Plane005"), [""])
sketch6.MapMode = "FlatFace"
sketch6.addGeometry(Part.LineSegment(App.Vector(49.534392, 12.016794, 0), App.Vector(-58.065608, 12.016794, 0)), False)
sketch6.addGeometry(Part.LineSegment(App.Vector(-58.065608, 12.016794, 0), App.Vector(-58.065608, 11.516794, 0)), False)
sketch6.addGeometry(Part.ArcOfCircle(Part.Circle(App.Vector(-57.565608, 11.516794, 0), App.Vector(0, 0, 1), 0.5), math.radians(180), math.radians(270)), False)
sketch6.addGeometry(Part.LineSegment(App.Vector(-57.565608, 11.016794, 0), App.Vector(49.034392, 11.016794, 0)), False)
sketch6.addGeometry(Part.ArcOfCircle(Part.Circle(App.Vector(49.034392, 11.516794, 0), App.Vector(0, 0, 1), 0.5), math.radians(-90), math.radians(0)), False)
sketch6.addGeometry(Part.LineSegment(App.Vector(49.534392, 11.516794, 0), App.Vector(49.534392, 12.016794, 0)), False)
sketch6.addConstraint(Sketcher.Constraint("Coincident", 0, 2, 1, 1))
sketch6.addConstraint(Sketcher.Constraint("Tangent", 1, 2, 2, 1))
sketch6.addConstraint(Sketcher.Constraint("Tangent", 2, 2, 3, 1))
sketch6.addConstraint(Sketcher.Constraint("Tangent", 3, 2, 4, 1))
sketch6.addConstraint(Sketcher.Constraint("Tangent", 4, 2, 5, 1))
sketch6.addConstraint(Sketcher.Constraint("Coincident", 5, 2, 0, 1))
sketch6.addConstraint(Sketcher.Constraint("Horizontal", 0))
sketch6.addConstraint(Sketcher.Constraint("Vertical", 1))
sketch6.addConstraint(Sketcher.Constraint("Horizontal", 3))
sketch6.addConstraint(Sketcher.Constraint("Vertical", 5))
sketch6.addConstraint(Sketcher.Constraint("Equal", 2, 4))
sketch6.addConstraint(Sketcher.Constraint("Radius", 2, Q("0.5 mm")))
sketch6.addConstraint(Sketcher.Constraint("DistanceX", 0, 2, 0, 1, Q("107.6 mm")))
sketch6.addConstraint(Sketcher.Constraint("DistanceY", 1, 2, 1, 1, Q("0.5 mm")))
sketch6.addConstraint(Sketcher.Constraint("DistanceX", 2, 3, -1, 1, Q("57.565608 mm")))
sketch6.addConstraint(Sketcher.Constraint("DistanceY", -1, 1, 2, 3, Q("11.516794 mm")))
pad6 = doc.addObject("PartDesign::Pad", "Pad005")
body6.addObject(pad6)
pad6.Profile = sketch6
pad6.Length = 2
body7 = doc.addObject("PartDesign::Body", "Body006")

# Sketch on XY plane
sketch7 = doc.addObject("Sketcher::SketchObject", "Sketch006")
body7.addObject(sketch7)
sketch7.AttachmentSupport = (doc.getObject("XY_Plane006"), [""])
sketch7.MapMode = "FlatFace"
add_polygon(sketch7, [(49.431039, 0), (-58.168961, 0), (-58.168961, -4), (47.931039, -4), (49.431039, -3.6)])  # lines 0-4
sketch7.addConstraint(Sketcher.Constraint("Horizontal", 0))
sketch7.addConstraint(Sketcher.Constraint("Vertical", 1))
sketch7.addConstraint(Sketcher.Constraint("Horizontal", 2))
sketch7.addConstraint(Sketcher.Constraint("Vertical", 4))
sketch7.addConstraint(Sketcher.Constraint("PointOnObject", 0, 2, -1))
sketch7.addConstraint(Sketcher.Constraint("DistanceY", 1, 2, 1, 1, Q("4 mm")))
sketch7.addConstraint(Sketcher.Constraint("DistanceX", 0, 2, 0, 1, Q("107.6 mm")))
sketch7.addConstraint(Sketcher.Constraint("DistanceX", 2, 1, 2, 2, Q("106.1 mm")))
sketch7.addConstraint(Sketcher.Constraint("DistanceY", 4, 1, 4, 2, Q("3.6 mm")))
sketch7.addConstraint(Sketcher.Constraint("DistanceX", 0, 2, -1, 1, Q("58.168961 mm")))
pad7 = doc.addObject("PartDesign::Pad", "Pad006")
body7.addObject(pad7)
pad7.Profile = sketch7
pad7.Length = 0.8
body8 = doc.addObject("PartDesign::Body", "Body007")

# Sketch on XY plane
sketch8 = doc.addObject("Sketcher::SketchObject", "Sketch007")
body8.addObject(sketch8)
sketch8.AttachmentSupport = (doc.getObject("XY_Plane007"), [""])
sketch8.MapMode = "FlatFace"
sketch8.addGeometry(Part.LineSegment(App.Vector(42.703595, -5.5, 0), App.Vector(-55.918961, -5.5, 0)), False)
sketch8.addGeometry(Part.ArcOfCircle(Part.Circle(App.Vector(-55.918961, -6.25, 0), App.Vector(0, 0, 1), 0.75), math.radians(90), math.radians(180)), False)
sketch8.addGeometry(Part.LineSegment(App.Vector(-56.668961, -6.25, 0), App.Vector(-56.668961, -11.75, 0)), False)
sketch8.addGeometry(Part.ArcOfCircle(Part.Circle(App.Vector(-55.918961, -11.75, 0), App.Vector(0, 0, 1), 0.75), math.radians(180), math.radians(270)), False)
sketch8.addGeometry(Part.LineSegment(App.Vector(-55.918961, -12.5, 0), App.Vector(42.703595, -12.5, 0)), False)
sketch8.addGeometry(Part.ArcOfCircle(Part.Circle(App.Vector(42.703595, -11.75, 0), App.Vector(0, 0, 1), 0.75), math.radians(-90), math.radians(0)), False)
sketch8.addGeometry(Part.LineSegment(App.Vector(43.453595, -11.75, 0), App.Vector(43.453595, -6.25, 0)), False)
sketch8.addGeometry(Part.ArcOfCircle(Part.Circle(App.Vector(42.703595, -6.25, 0), App.Vector(0, 0, 1), 0.75), math.radians(0), math.radians(90)), False)
sketch8.addConstraint(Sketcher.Constraint("Tangent", 0, 2, 1, 1))
sketch8.addConstraint(Sketcher.Constraint("Tangent", 1, 2, 2, 1))
sketch8.addConstraint(Sketcher.Constraint("Tangent", 2, 2, 3, 1))
sketch8.addConstraint(Sketcher.Constraint("Tangent", 3, 2, 4, 1))
sketch8.addConstraint(Sketcher.Constraint("Tangent", 4, 2, 5, 1))
sketch8.addConstraint(Sketcher.Constraint("Tangent", 5, 2, 6, 1))
sketch8.addConstraint(Sketcher.Constraint("Tangent", 6, 2, 7, 1))
sketch8.addConstraint(Sketcher.Constraint("Tangent", 7, 2, 0, 1))
sketch8.addConstraint(Sketcher.Constraint("Horizontal", 0))
sketch8.addConstraint(Sketcher.Constraint("Vertical", 2))
sketch8.addConstraint(Sketcher.Constraint("Horizontal", 4))
sketch8.addConstraint(Sketcher.Constraint("Vertical", 6))
sketch8.addConstraint(Sketcher.Constraint("Equal", 1, 3))
sketch8.addConstraint(Sketcher.Constraint("Equal", 3, 5))
sketch8.addConstraint(Sketcher.Constraint("Equal", 5, 7))
sketch8.addConstraint(Sketcher.Constraint("Radius", 1, Q("0.75 mm")))
sketch8.addConstraint(Sketcher.Constraint("DistanceY", 2, 2, 2, 1, Q("5.5 mm")))
sketch8.addConstraint(Sketcher.Constraint("DistanceY", 0, 2, -1, 1, Q("5.5 mm")))
sketch8.addConstraint(Sketcher.Constraint("DistanceX", 0, 2, 0, 1, Q("98.622557 mm")))
sketch8.addConstraint(Sketcher.Constraint("DistanceX", 1, 3, -1, 1, Q("55.918961 mm")))
pad8 = doc.addObject("PartDesign::Pad", "Pad007")
body8.addObject(pad8)
pad8.Profile = sketch8
pad8.Length = 0.8
body9 = doc.addObject("PartDesign::Body", "Body008")

# Sketch on XY plane
sketch9 = doc.addObject("Sketcher::SketchObject", "Sketch008")
body9.addObject(sketch9)
sketch9.AttachmentSupport = (doc.getObject("XY_Plane008"), [""])
sketch9.MapMode = "FlatFace"
add_polygon(sketch9, [(47.931039, -14), (-58.168961, -14), (-58.168961, -18), (49.431039, -18), (49.431039, -14.4)])  # lines 0-4
sketch9.addConstraint(Sketcher.Constraint("Horizontal", 0))
sketch9.addConstraint(Sketcher.Constraint("Vertical", 1))
sketch9.addConstraint(Sketcher.Constraint("Horizontal", 2))
sketch9.addConstraint(Sketcher.Constraint("Vertical", 3))
sketch9.addConstraint(Sketcher.Constraint("DistanceY", 1, 2, 1, 1, Q("4 mm")))
sketch9.addConstraint(Sketcher.Constraint("DistanceX", 0, 2, 0, 1, Q("106.1 mm")))
sketch9.addConstraint(Sketcher.Constraint("DistanceX", 2, 1, 2, 2, Q("107.6 mm")))
sketch9.addConstraint(Sketcher.Constraint("DistanceY", 3, 1, 3, 2, Q("3.6 mm")))
sketch9.addConstraint(Sketcher.Constraint("DistanceY", 0, 2, -1, 1, Q("14 mm")))
sketch9.addConstraint(Sketcher.Constraint("DistanceX", 0, 2, -1, 1, Q("58.168961 mm")))
pad9 = doc.addObject("PartDesign::Pad", "Pad008")
body9.addObject(pad9)
pad9.Profile = sketch9
pad9.Length = 0.8
body10 = doc.addObject("PartDesign::Body", "Body009")

# Sketch on XY plane
sketch10 = doc.addObject("Sketcher::SketchObject", "Sketch009")
body10.addObject(sketch10)
sketch10.AttachmentSupport = (doc.getObject("XY_Plane009"), [""])
sketch10.MapMode = "FlatFace"
add_polygon(sketch10, [(49.534392, 30.016794), (-58.065608, 30.016794), (-58.065608, 26.016794), (48.034392, 26.016794), (49.534392, 26.416794)])  # lines 0-4
sketch10.addConstraint(Sketcher.Constraint("Horizontal", 0))
sketch10.addConstraint(Sketcher.Constraint("Vertical", 1))
sketch10.addConstraint(Sketcher.Constraint("Horizontal", 2))
sketch10.addConstraint(Sketcher.Constraint("Vertical", 4))
sketch10.addConstraint(Sketcher.Constraint("DistanceY", 1, 2, 1, 1, Q("4 mm")))
sketch10.addConstraint(Sketcher.Constraint("DistanceX", 0, 2, 0, 1, Q("107.6 mm")))
sketch10.addConstraint(Sketcher.Constraint("DistanceX", 2, 1, 2, 2, Q("106.1 mm")))
sketch10.addConstraint(Sketcher.Constraint("DistanceY", 4, 1, 4, 2, Q("3.6 mm")))
sketch10.addConstraint(Sketcher.Constraint("DistanceX", 0, 2, -1, 1, Q("58.065608 mm")))
sketch10.addConstraint(Sketcher.Constraint("DistanceY", -1, 1, 0, 2, Q("30.016794 mm")))
pad10 = doc.addObject("PartDesign::Pad", "Pad009")
body10.addObject(pad10)
pad10.Profile = sketch10
pad10.Length = 0.8
body11 = doc.addObject("PartDesign::Body", "Body010")

# Sketch on XY plane
sketch11 = doc.addObject("Sketcher::SketchObject", "Sketch010")
body11.addObject(sketch11)
sketch11.AttachmentSupport = (doc.getObject("XY_Plane010"), [""])
sketch11.MapMode = "FlatFace"
sketch11.addGeometry(Part.LineSegment(App.Vector(42.806948, 24.516794, 0), App.Vector(-55.815608, 24.516794, 0)), False)
sketch11.addGeometry(Part.ArcOfCircle(Part.Circle(App.Vector(-55.815608, 23.766794, 0), App.Vector(0, 0, 1), 0.75), math.radians(90), math.radians(180)), False)
sketch11.addGeometry(Part.LineSegment(App.Vector(-56.565608, 23.766794, 0), App.Vector(-56.565608, 18.266794, 0)), False)
sketch11.addGeometry(Part.ArcOfCircle(Part.Circle(App.Vector(-55.815608, 18.266794, 0), App.Vector(0, 0, 1), 0.75), math.radians(180), math.radians(270)), False)
sketch11.addGeometry(Part.LineSegment(App.Vector(-55.815608, 17.516794, 0), App.Vector(42.806948, 17.516794, 0)), False)
sketch11.addGeometry(Part.ArcOfCircle(Part.Circle(App.Vector(42.806948, 18.266794, 0), App.Vector(0, 0, 1), 0.75), math.radians(-90), math.radians(0)), False)
sketch11.addGeometry(Part.LineSegment(App.Vector(43.556948, 18.266794, 0), App.Vector(43.556948, 23.766794, 0)), False)
sketch11.addGeometry(Part.ArcOfCircle(Part.Circle(App.Vector(42.806948, 23.766794, 0), App.Vector(0, 0, 1), 0.75), math.radians(0), math.radians(90)), False)
sketch11.addConstraint(Sketcher.Constraint("Tangent", 0, 2, 1, 1))
sketch11.addConstraint(Sketcher.Constraint("Tangent", 1, 2, 2, 1))
sketch11.addConstraint(Sketcher.Constraint("Tangent", 2, 2, 3, 1))
sketch11.addConstraint(Sketcher.Constraint("Tangent", 3, 2, 4, 1))
sketch11.addConstraint(Sketcher.Constraint("Tangent", 4, 2, 5, 1))
sketch11.addConstraint(Sketcher.Constraint("Tangent", 5, 2, 6, 1))
sketch11.addConstraint(Sketcher.Constraint("Tangent", 6, 2, 7, 1))
sketch11.addConstraint(Sketcher.Constraint("Tangent", 7, 2, 0, 1))
sketch11.addConstraint(Sketcher.Constraint("Horizontal", 0))
sketch11.addConstraint(Sketcher.Constraint("Vertical", 2))
sketch11.addConstraint(Sketcher.Constraint("Horizontal", 4))
sketch11.addConstraint(Sketcher.Constraint("Vertical", 6))
sketch11.addConstraint(Sketcher.Constraint("Equal", 1, 3))
sketch11.addConstraint(Sketcher.Constraint("Equal", 3, 5))
sketch11.addConstraint(Sketcher.Constraint("Equal", 5, 7))
sketch11.addConstraint(Sketcher.Constraint("Radius", 1, Q("0.75 mm")))
sketch11.addConstraint(Sketcher.Constraint("DistanceY", 2, 2, 2, 1, Q("5.5 mm")))
sketch11.addConstraint(Sketcher.Constraint("DistanceX", 0, 2, 0, 1, Q("98.622557 mm")))
sketch11.addConstraint(Sketcher.Constraint("DistanceX", 1, 3, -1, 1, Q("55.815608 mm")))
sketch11.addConstraint(Sketcher.Constraint("DistanceY", -1, 1, 1, 3, Q("23.766794 mm")))
pad11 = doc.addObject("PartDesign::Pad", "Pad010")
body11.addObject(pad11)
pad11.Profile = sketch11
pad11.Length = 0.8
body12 = doc.addObject("PartDesign::Body", "Body011")

# Sketch on XY plane
sketch12 = doc.addObject("Sketcher::SketchObject", "Sketch011")
body12.addObject(sketch12)
sketch12.AttachmentSupport = (doc.getObject("XY_Plane011"), [""])
sketch12.MapMode = "FlatFace"
add_polygon(sketch12, [(48.034392, 16.016794), (-58.065608, 16.016794), (-58.065608, 12.016794), (49.534392, 12.016794), (49.534392, 15.616794)])  # lines 0-4
sketch12.addConstraint(Sketcher.Constraint("Horizontal", 0))
sketch12.addConstraint(Sketcher.Constraint("Vertical", 1))
sketch12.addConstraint(Sketcher.Constraint("Horizontal", 2))
sketch12.addConstraint(Sketcher.Constraint("Vertical", 3))
sketch12.addConstraint(Sketcher.Constraint("DistanceY", 1, 2, 1, 1, Q("4 mm")))
sketch12.addConstraint(Sketcher.Constraint("DistanceX", 0, 2, 0, 1, Q("106.1 mm")))
sketch12.addConstraint(Sketcher.Constraint("DistanceX", 2, 1, 2, 2, Q("107.6 mm")))
sketch12.addConstraint(Sketcher.Constraint("DistanceY", 3, 1, 3, 2, Q("3.6 mm")))
sketch12.addConstraint(Sketcher.Constraint("DistanceX", 0, 2, -1, 1, Q("58.065608 mm")))
sketch12.addConstraint(Sketcher.Constraint("DistanceY", -1, 1, 0, 2, Q("16.016794 mm")))
pad12 = doc.addObject("PartDesign::Pad", "Pad011")
body12.addObject(pad12)
pad12.Profile = sketch12
pad12.Length = 0.8

doc.recompute()
